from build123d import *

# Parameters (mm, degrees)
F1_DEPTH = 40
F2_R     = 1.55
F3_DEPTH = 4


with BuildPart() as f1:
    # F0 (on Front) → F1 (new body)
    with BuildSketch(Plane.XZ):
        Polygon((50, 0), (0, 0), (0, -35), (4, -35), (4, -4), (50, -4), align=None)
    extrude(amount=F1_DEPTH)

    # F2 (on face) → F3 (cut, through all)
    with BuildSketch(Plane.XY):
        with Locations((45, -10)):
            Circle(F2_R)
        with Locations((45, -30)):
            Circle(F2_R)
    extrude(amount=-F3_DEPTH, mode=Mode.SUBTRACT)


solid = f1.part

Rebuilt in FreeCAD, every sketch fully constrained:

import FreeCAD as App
import Part
import Sketcher

V = App.Vector
Q = App.Units.Quantity


def add_polygon(sketch, points):
    """Adds a closed chain of lines whose ends are joined by coincident constraints."""
    first, n = sketch.GeometryCount, len(points)
    for a, b in zip(points, points[1:] + points[:1]):
        sketch.addGeometry(Part.LineSegment(App.Vector(*a, 0), App.Vector(*b, 0)), False)
    for i in range(n):
        sketch.addConstraint(Sketcher.Constraint("Coincident", first + i, 2, first + (i + 1) % n, 1))

doc = App.newDocument("Part")
body = doc.addObject("PartDesign::Body", "Body")

# Sketch on XZ plane
sketch1 = body.newObject("Sketcher::SketchObject", "Sketch")
sketch1.AttachmentSupport = (doc.getObject("XZ_Plane"), [""])
sketch1.MapMode = "FlatFace"
add_polygon(sketch1, [(50, 0), (0, 0), (0, -35), (4, -35), (4, -4), (50, -4)])  # lines 0-5
sketch1.addConstraint(Sketcher.Constraint("Horizontal", 0))
sketch1.addConstraint(Sketcher.Constraint("Vertical", 1))
sketch1.addConstraint(Sketcher.Constraint("Horizontal", 2))
sketch1.addConstraint(Sketcher.Constraint("Vertical", 3))
sketch1.addConstraint(Sketcher.Constraint("Horizontal", 4))
sketch1.addConstraint(Sketcher.Constraint("Vertical", 5))
sketch1.addConstraint(Sketcher.Constraint("Coincident", 0, 2, -1, 1))
sketch1.addConstraint(Sketcher.Constraint("Equal", 2, 5))
sketch1.addConstraint(Sketcher.Constraint("DistanceX", 0, 2, 0, 1, Q("50 mm")))
sketch1.addConstraint(Sketcher.Constraint("DistanceX", 2, 1, 2, 2, Q("4 mm")))
sketch1.addConstraint(Sketcher.Constraint("DistanceY", 1, 2, 1, 1, Q("35 mm")))
pad1 = body.newObject("PartDesign::Pad", "Pad")
pad1.Profile = sketch1
pad1.Length = 40

# Sketch on XY plane
sketch2 = body.newObject("Sketcher::SketchObject", "Sketch001")
sketch2.AttachmentSupport = (doc.getObject("XY_Plane"), [""])
sketch2.MapMode = "FlatFace"
sketch2.addGeometry(Part.Circle(V(45, -10, 0), V(0, 0, 1), 1.55), False)
sketch2.addGeometry(Part.Circle(V(45, -30, 0), V(0, 0, 1), 1.55), False)
sketch2.addConstraint(Sketcher.Constraint("Equal", 0, 1))
sketch2.addConstraint(Sketcher.Constraint("Vertical", 0, 3, 1, 3))
sketch2.addConstraint(Sketcher.Constraint("Diameter", 0, Q("3.1 mm")))
sketch2.addConstraint(Sketcher.Constraint("DistanceX", -1, 1, 0, 3, Q("45 mm")))
sketch2.addConstraint(Sketcher.Constraint("DistanceY", 0, 3, -1, 1, Q("10 mm")))
sketch2.addConstraint(Sketcher.Constraint("DistanceY", 1, 3, -1, 1, Q("30 mm")))
pocket1 = body.newObject("PartDesign::Pocket", "Pocket")
pocket1.Profile = sketch2
pocket1.Type = "ThroughAll"

doc.recompute()
